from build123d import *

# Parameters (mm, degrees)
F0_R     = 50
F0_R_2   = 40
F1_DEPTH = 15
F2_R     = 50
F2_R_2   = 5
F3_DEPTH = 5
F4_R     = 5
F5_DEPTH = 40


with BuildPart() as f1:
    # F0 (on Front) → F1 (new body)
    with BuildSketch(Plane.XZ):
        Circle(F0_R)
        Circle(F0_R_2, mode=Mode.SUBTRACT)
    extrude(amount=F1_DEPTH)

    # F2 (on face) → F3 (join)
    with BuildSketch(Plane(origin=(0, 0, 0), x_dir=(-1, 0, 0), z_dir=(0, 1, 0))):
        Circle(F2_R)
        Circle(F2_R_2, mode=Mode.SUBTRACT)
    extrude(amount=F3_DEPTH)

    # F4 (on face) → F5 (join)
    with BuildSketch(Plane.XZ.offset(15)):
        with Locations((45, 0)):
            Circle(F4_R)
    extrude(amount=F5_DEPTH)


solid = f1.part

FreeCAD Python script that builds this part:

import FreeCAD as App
import Part
import Sketcher

V = App.Vector

doc = App.newDocument("Part")
body = doc.addObject("PartDesign::Body", "Body")

# Sketch on XZ plane
sketch1 = body.newObject("Sketcher::SketchObject", "Sketch")
sketch1.AttachmentSupport = (doc.getObject("XZ_Plane"), [""])
sketch1.MapMode = "FlatFace"
sketch1.addGeometry([
    Part.Circle(V(0, 0, 0), V(0, 0, 1), 50),
    Part.Circle(V(0, 0, 0), V(0, 0, 1), 40),
], False)
sketch1.addConstraint([
    Sketcher.Constraint("Coincident", 0, 3, -1, 1),
    Sketcher.Constraint("Coincident", 1, 3, -1, 1),
    Sketcher.Constraint("Diameter", 0, 100.0),
    Sketcher.Constraint("Diameter", 1, 80.0),
])
pad1 = body.newObject("PartDesign::Pad", "Pad")
pad1.Profile = sketch1
pad1.Length = 15

# Sketch on XZ plane
sketch2 = body.newObject("Sketcher::SketchObject", "Sketch001")
sketch2.AttachmentSupport = (doc.getObject("XZ_Plane"), [""])
sketch2.MapMode = "FlatFace"
sketch2.addGeometry([
    Part.Circle(V(0, 0, 0), V(0, 0, 1), 50),
    Part.Circle(V(0, 0, 0), V(0, 0, 1), 5),
], False)
sketch2.addConstraint([
    Sketcher.Constraint("Coincident", 0, 3, -1, 1),
    Sketcher.Constraint("Coincident", 1, 3, -1, 1),
    Sketcher.Constraint("Diameter", 0, 100.0),
    Sketcher.Constraint("Diameter", 1, 10.0),
])
pad2 = body.newObject("PartDesign::Pad", "Pad001")
pad2.Profile = sketch2
pad2.Length = 5
pad2.Reversed = True

# Sketch on XZ plane
sketch3 = body.newObject("Sketcher::SketchObject", "Sketch002")
sketch3.AttachmentSupport = (doc.getObject("XZ_Plane"), [""])
sketch3.MapMode = "FlatFace"
sketch3.AttachmentOffset = App.Placement(V(0, 0, 15), App.Rotation())
sketch3.addGeometry(Part.Circle(V(45, 0, 0), V(0, 0, 1), 5), False)
sketch3.addConstraint([
    Sketcher.Constraint("PointOnObject", 0, 3, -1),
    Sketcher.Constraint("Diameter", 0, 10.0),
    Sketcher.Constraint("DistanceX", -1, 1, 0, 3, 45.0),
])
pad3 = body.newObject("PartDesign::Pad", "Pad002")
pad3.Profile = sketch3
pad3.Length = 40

doc.recompute()
